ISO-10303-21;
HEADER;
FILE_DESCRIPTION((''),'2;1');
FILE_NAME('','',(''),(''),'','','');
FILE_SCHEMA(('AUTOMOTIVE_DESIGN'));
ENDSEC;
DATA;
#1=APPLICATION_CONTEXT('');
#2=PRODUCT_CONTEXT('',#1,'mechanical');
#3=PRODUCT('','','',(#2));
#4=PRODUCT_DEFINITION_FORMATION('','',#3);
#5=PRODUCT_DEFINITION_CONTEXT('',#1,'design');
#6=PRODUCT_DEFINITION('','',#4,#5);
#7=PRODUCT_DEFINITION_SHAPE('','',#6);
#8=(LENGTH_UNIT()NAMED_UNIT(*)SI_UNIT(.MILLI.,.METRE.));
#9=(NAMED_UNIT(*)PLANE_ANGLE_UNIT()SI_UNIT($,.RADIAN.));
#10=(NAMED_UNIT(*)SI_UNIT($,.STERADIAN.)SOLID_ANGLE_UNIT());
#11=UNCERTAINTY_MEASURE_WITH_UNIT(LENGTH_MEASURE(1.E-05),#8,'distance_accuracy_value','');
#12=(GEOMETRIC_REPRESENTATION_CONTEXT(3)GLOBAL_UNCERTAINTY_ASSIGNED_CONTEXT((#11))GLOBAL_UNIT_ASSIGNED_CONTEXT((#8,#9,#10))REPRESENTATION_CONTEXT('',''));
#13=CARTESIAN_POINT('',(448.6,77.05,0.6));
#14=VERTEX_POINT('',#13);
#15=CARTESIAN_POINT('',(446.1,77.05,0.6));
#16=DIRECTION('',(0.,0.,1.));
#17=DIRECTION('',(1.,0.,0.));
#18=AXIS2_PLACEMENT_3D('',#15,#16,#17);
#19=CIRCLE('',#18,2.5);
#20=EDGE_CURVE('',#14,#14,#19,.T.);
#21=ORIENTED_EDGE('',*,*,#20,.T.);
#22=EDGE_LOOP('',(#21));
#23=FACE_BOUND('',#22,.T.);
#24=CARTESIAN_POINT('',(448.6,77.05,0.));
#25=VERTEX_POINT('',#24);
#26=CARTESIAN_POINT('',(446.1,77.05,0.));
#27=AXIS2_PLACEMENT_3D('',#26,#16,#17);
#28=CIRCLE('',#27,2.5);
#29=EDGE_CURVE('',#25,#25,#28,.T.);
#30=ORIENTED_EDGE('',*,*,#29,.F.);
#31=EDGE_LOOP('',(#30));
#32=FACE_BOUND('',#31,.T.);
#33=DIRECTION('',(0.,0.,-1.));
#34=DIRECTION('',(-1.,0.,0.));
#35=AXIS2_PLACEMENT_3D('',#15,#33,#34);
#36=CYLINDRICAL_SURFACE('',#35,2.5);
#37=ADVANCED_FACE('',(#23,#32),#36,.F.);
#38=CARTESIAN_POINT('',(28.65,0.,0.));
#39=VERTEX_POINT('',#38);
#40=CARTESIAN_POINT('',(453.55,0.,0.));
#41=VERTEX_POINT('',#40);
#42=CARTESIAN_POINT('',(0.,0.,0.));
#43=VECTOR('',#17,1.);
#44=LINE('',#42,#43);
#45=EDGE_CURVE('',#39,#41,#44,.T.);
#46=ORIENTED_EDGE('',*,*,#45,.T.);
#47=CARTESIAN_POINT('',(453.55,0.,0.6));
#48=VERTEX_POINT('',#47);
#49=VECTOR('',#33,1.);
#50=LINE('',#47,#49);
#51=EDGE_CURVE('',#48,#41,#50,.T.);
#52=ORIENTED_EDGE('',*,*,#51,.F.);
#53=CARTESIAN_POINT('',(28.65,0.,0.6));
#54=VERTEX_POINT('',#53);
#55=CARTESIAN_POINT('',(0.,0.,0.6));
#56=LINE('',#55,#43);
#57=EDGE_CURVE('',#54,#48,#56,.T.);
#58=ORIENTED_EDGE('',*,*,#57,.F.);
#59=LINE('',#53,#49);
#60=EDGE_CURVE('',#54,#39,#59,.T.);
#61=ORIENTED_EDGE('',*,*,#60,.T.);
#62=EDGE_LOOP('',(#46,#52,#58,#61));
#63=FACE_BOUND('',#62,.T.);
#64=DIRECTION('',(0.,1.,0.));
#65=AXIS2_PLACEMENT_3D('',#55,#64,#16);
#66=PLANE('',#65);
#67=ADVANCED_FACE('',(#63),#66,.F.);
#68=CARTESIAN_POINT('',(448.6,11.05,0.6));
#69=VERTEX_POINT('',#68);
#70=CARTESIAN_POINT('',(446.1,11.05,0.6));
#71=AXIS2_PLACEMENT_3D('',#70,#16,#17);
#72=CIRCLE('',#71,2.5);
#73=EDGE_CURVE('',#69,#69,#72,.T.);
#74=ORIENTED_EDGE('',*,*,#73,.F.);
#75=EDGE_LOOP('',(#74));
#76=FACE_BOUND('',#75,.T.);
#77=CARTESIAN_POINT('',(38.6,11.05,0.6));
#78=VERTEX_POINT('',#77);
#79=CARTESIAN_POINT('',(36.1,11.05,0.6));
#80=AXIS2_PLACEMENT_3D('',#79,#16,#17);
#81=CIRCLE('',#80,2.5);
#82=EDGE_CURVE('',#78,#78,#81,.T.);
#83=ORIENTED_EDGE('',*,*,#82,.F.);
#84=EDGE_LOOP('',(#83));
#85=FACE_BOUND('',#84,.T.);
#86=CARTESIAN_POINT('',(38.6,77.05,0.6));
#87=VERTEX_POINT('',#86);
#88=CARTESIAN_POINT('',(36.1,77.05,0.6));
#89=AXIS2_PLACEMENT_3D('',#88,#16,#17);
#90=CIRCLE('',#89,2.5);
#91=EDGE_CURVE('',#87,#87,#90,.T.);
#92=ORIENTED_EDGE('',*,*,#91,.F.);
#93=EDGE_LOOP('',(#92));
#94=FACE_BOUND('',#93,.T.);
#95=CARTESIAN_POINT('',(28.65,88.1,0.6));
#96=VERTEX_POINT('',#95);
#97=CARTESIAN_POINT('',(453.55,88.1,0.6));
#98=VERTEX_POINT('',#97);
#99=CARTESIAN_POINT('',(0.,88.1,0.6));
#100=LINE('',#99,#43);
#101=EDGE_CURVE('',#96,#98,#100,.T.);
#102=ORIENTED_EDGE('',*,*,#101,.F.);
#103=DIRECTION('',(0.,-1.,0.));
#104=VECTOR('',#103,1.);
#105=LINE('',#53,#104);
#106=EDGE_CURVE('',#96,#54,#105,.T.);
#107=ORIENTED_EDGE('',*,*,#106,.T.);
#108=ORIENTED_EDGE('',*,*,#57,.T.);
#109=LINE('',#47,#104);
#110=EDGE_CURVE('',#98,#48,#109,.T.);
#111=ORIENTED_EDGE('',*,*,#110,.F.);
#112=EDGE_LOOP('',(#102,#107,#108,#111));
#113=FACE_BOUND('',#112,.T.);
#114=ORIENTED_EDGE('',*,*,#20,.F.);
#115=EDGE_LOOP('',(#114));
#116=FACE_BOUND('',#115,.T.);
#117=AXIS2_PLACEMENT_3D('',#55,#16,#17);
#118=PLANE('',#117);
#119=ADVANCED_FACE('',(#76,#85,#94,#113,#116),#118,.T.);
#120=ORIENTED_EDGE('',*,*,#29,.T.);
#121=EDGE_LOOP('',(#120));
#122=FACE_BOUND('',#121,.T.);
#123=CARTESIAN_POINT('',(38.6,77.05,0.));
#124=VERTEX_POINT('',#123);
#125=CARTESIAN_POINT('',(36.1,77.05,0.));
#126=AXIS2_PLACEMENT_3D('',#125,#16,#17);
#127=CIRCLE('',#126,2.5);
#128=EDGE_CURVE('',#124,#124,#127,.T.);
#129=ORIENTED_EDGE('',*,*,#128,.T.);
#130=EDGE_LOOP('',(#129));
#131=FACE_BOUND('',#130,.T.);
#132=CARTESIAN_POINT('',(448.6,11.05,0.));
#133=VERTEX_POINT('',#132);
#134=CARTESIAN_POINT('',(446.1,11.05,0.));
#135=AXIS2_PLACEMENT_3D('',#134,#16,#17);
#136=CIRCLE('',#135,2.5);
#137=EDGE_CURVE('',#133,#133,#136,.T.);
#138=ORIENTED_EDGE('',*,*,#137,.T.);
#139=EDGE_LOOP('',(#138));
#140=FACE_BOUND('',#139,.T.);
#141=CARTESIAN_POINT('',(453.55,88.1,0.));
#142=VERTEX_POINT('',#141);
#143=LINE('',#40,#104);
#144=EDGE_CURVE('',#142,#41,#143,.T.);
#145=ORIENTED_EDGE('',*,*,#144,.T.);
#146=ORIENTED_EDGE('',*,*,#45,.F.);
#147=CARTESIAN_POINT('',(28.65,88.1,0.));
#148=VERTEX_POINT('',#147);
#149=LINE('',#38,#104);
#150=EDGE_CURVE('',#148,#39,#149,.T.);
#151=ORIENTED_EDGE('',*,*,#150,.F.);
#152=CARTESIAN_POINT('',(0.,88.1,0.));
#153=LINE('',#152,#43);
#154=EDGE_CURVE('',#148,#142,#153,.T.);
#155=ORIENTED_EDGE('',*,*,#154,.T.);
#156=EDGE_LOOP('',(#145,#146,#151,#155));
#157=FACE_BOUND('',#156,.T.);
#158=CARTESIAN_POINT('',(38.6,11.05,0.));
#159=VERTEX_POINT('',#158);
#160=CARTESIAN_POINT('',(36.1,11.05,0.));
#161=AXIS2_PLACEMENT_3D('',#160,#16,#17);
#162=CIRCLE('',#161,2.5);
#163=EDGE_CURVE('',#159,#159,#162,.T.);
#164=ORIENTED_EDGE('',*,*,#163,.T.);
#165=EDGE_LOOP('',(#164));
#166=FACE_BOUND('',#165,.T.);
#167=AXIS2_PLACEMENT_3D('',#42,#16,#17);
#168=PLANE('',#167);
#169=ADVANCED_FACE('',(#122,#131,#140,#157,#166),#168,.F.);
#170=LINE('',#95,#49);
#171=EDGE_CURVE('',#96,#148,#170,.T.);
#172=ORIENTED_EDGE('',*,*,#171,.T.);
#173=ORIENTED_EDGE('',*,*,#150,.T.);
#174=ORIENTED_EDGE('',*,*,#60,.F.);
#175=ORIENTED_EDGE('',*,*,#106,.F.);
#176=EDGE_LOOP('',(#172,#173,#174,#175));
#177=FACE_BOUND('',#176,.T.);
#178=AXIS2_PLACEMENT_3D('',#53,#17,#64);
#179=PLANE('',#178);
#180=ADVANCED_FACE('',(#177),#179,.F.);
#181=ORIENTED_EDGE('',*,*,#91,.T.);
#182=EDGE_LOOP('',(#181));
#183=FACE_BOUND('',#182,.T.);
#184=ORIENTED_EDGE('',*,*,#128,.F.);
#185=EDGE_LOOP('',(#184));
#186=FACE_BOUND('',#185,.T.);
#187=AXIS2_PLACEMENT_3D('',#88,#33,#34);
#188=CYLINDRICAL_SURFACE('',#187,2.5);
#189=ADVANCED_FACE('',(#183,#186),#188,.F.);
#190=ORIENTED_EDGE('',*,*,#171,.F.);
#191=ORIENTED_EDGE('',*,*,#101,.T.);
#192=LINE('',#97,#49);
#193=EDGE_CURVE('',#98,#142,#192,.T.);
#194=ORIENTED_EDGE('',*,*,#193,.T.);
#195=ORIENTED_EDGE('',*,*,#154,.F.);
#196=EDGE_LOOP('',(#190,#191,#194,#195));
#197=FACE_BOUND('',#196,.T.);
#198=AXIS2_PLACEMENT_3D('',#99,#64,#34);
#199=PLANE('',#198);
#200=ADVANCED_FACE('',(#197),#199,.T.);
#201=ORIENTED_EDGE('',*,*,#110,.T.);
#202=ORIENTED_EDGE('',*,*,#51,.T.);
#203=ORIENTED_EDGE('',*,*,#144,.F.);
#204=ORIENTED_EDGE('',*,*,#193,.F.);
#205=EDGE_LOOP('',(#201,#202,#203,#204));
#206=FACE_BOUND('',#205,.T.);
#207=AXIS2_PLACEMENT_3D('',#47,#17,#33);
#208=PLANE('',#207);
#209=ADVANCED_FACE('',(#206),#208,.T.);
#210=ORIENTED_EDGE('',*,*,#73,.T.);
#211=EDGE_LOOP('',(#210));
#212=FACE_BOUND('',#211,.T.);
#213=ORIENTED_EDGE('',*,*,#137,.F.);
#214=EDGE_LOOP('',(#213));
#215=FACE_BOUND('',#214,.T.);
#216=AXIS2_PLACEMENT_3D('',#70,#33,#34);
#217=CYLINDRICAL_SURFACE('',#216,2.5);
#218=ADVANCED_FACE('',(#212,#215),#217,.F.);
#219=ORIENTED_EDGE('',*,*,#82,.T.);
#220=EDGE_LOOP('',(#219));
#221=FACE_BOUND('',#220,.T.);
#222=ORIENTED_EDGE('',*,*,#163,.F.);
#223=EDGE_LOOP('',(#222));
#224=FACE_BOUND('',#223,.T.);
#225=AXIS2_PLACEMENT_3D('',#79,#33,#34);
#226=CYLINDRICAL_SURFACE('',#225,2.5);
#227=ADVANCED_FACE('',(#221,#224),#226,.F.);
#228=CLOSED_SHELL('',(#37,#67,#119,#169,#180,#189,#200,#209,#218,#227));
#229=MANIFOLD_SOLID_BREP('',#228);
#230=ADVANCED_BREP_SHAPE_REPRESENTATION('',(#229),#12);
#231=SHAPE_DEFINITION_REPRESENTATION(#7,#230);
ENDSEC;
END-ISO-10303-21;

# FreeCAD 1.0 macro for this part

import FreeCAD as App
import Part
import Sketcher
Q = App.Units.Quantity

doc = App.newDocument("Part")
body = doc.addObject("PartDesign::Body", "Body")

# Sketch on XY plane
sketch1 = body.newObject("Sketcher::SketchObject", "Sketch")
sketch1.AttachmentSupport = (doc.getObject("XY_Plane"), [""])
sketch1.MapMode = "FlatFace"
sketch1.addGeometry([
    Part.LineSegment(App.Vector(28.6, 88.1, 0), App.Vector(28.6, 0, 0)),  # 0
    Part.LineSegment(App.Vector(28.6, 0, 0), App.Vector(453.6, 0, 0)),  # 1
    Part.LineSegment(App.Vector(453.6, 0, 0), App.Vector(453.6, 88.1, 0)),  # 2
    Part.LineSegment(App.Vector(453.6, 88.1, 0), App.Vector(28.6, 88.1, 0)),  # 3
    Part.Circle(App.Vector(36.1, 11.1, 0), App.Vector(0, 0, 1), 2.5),  # 4
    Part.Circle(App.Vector(446.1, 11.1, 0), App.Vector(0, 0, 1), 2.5),  # 5
    Part.Circle(App.Vector(36.1, 77, 0), App.Vector(0, 0, 1), 2.5),  # 6
    Part.Circle(App.Vector(446.1, 77, 0), App.Vector(0, 0, 1), 2.5),  # 7
], False)
sketch1.addConstraint([
    Sketcher.Constraint("Coincident", 0, 2, 1, 1),
    Sketcher.Constraint("Coincident", 1, 2, 2, 1),
    Sketcher.Constraint("Coincident", 2, 2, 3, 1),
    Sketcher.Constraint("Coincident", 3, 2, 0, 1),
    Sketcher.Constraint("Vertical", 0),
    Sketcher.Constraint("Horizontal", 1),
    Sketcher.Constraint("Vertical", 2),
    Sketcher.Constraint("Horizontal", 3),
    Sketcher.Constraint("Equal", 4, 5),
    Sketcher.Constraint("Equal", 5, 6),
    Sketcher.Constraint("Equal", 6, 7),
    Sketcher.Constraint("PointOnObject", 0, 2, -1),
    Sketcher.Constraint("Horizontal", 4, 3, 5, 3),
    Sketcher.Constraint("Horizontal", 6, 3, 7, 3),
    Sketcher.Constraint("Vertical", 4, 3, 6, 3),
    Sketcher.Constraint("Vertical", 5, 3, 7, 3),
    Sketcher.Constraint("Diameter", 4, Q("5 mm")),
    Sketcher.Constraint("DistanceX", 1, 1, 1, 2, Q("424.9 mm")),
    Sketcher.Constraint("DistanceY", 0, 2, 0, 1, Q("88.1 mm")),
    Sketcher.Constraint("DistanceX", 4, 3, 5, 3, Q("410 mm")),
    Sketcher.Constraint("DistanceY", 4, 3, 6, 3, Q("66 mm")),
    Sketcher.Constraint("DistanceX", -1, 1, 4, 3, Q("36.1 mm")),
    Sketcher.Constraint("DistanceY", -1, 1, 4, 3, Q("11.05 mm")),
    Sketcher.Constraint("DistanceX", -1, 1, 0, 2, Q("28.65 mm")),
])
pad1 = body.newObject("PartDesign::Pad", "Pad")
pad1.Profile = sketch1
pad1.Length = 0.6

doc.recompute()
